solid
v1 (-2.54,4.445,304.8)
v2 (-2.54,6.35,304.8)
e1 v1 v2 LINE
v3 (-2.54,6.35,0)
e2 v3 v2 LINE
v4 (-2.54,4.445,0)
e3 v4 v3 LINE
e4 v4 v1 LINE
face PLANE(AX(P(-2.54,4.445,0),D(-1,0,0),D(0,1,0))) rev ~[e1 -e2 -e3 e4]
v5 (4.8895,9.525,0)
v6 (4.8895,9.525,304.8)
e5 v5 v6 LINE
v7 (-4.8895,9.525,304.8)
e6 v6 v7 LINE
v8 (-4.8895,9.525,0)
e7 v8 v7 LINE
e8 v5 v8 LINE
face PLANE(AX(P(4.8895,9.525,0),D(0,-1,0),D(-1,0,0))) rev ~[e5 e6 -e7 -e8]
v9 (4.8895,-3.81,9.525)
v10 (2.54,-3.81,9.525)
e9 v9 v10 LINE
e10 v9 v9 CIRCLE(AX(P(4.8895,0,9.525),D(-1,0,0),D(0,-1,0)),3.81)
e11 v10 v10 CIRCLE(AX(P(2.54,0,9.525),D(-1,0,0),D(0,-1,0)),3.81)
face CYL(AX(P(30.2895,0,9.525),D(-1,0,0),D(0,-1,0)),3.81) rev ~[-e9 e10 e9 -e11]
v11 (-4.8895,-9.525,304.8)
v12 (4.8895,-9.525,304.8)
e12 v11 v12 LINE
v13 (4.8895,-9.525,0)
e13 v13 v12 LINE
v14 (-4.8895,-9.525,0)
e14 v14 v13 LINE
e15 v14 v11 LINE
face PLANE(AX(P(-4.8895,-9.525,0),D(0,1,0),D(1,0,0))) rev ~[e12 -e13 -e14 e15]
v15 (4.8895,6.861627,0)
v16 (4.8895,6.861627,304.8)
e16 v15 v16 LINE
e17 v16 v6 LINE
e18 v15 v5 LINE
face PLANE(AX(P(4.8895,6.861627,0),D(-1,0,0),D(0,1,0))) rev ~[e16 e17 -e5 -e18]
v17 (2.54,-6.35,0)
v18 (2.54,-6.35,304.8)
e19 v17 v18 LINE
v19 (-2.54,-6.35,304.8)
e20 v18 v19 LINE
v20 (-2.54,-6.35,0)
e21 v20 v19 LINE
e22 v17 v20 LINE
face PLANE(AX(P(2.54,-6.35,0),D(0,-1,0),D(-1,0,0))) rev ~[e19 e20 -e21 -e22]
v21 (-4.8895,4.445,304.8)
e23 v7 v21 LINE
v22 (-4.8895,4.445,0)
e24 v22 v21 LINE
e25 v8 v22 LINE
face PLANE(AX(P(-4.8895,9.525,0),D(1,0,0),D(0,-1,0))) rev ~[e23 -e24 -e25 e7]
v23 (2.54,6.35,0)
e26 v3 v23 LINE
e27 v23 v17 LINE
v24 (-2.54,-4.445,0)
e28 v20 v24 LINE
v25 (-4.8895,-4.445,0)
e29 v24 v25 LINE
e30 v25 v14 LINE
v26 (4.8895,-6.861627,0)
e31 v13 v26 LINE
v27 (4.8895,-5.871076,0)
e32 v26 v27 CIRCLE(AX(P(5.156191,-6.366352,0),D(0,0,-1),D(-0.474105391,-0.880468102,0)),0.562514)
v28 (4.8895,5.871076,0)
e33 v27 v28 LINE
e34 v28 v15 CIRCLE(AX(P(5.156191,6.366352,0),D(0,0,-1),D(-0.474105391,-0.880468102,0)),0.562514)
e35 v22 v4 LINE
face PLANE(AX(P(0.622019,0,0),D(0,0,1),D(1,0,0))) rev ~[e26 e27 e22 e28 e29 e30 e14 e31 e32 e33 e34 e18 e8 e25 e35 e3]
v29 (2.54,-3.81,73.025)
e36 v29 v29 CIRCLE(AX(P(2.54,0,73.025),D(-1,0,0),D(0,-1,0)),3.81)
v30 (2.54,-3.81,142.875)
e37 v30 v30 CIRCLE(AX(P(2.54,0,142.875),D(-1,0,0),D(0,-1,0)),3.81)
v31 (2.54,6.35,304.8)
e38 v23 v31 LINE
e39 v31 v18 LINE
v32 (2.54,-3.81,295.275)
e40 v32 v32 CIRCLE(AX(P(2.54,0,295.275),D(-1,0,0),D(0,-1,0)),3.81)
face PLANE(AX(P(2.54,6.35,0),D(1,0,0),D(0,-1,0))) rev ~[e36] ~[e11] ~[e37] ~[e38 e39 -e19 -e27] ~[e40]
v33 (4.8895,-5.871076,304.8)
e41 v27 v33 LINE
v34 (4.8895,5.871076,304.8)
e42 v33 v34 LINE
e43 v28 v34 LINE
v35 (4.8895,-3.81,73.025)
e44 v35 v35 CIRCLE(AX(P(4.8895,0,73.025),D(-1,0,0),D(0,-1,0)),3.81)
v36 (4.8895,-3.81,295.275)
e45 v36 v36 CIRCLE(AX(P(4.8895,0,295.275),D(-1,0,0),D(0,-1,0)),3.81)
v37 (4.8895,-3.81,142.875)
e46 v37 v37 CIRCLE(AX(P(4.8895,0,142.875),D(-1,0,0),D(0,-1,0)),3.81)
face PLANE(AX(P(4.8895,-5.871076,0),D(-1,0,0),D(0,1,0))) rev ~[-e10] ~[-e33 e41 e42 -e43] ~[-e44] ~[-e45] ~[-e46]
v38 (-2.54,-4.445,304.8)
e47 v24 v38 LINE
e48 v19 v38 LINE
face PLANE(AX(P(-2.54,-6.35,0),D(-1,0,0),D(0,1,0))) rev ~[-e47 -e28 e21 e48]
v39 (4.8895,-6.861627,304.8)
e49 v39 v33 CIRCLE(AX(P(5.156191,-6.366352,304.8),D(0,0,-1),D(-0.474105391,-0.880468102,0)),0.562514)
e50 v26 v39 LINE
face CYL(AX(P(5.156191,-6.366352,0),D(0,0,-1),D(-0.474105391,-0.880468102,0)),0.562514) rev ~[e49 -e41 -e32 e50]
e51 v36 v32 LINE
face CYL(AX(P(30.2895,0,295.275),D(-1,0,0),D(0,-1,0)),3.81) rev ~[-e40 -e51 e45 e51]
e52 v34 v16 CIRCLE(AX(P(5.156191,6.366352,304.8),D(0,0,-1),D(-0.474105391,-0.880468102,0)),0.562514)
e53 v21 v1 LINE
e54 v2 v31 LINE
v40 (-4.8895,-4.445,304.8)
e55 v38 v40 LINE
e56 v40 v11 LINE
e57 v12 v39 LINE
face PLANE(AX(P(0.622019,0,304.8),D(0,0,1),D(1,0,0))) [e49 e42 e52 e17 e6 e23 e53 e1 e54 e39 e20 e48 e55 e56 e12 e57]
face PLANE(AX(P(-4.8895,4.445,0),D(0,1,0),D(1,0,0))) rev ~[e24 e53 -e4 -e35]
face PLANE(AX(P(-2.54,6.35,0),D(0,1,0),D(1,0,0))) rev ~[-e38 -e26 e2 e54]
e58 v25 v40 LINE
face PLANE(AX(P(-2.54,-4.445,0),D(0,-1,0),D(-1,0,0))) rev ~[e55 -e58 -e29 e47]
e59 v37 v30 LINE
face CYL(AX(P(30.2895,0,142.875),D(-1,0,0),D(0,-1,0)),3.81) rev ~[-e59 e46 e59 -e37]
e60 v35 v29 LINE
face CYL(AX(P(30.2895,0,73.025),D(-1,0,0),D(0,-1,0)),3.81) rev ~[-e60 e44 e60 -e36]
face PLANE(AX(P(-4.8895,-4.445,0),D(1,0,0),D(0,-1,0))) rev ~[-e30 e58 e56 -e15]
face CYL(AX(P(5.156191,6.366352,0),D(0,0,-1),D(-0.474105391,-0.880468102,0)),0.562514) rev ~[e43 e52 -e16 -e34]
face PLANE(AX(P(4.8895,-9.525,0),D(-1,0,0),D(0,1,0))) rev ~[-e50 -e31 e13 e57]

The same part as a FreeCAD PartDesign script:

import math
import FreeCAD as App
import Part
import Sketcher

V = App.Vector
Q = App.Units.Quantity

doc = App.newDocument("Part")
body = doc.addObject("PartDesign::Body", "Body")

# Sketch on XY plane
sketch1 = doc.addObject("Sketcher::SketchObject", "Sketch")
body.addObject(sketch1)
sketch1.AttachmentSupport = (doc.XY_Plane, [""])
sketch1.MapMode = "FlatFace"
sketch1.addGeometry([
    Part.LineSegment(V(-4.9, -9.5, 0), V(4.9, -9.5, 0)),  # 0
    Part.LineSegment(V(4.9, -9.5, 0), V(4.9, -6.9, 0)),  # 1
    Part.ArcOfCircle(Part.Circle(V(5.2, -6.4, 0), V(0, 0, 1), 0.6), math.radians(118), math.radians(242)),  # 2
    Part.LineSegment(V(4.9, -5.9, 0), V(4.9, 5.9, 0)),  # 3
    Part.ArcOfCircle(Part.Circle(V(5.2, 6.4, 0), V(0, 0, 1), 0.6), math.radians(118), math.radians(242)),  # 4
    Part.LineSegment(V(4.9, 6.9, 0), V(4.9, 9.5, 0)),  # 5
    Part.LineSegment(V(4.9, 9.5, 0), V(-4.9, 9.5, 0)),  # 6
    Part.LineSegment(V(-4.9, 9.5, 0), V(-4.9, 4.4, 0)),  # 7
    Part.LineSegment(V(-4.9, 4.4, 0), V(-2.5, 4.4, 0)),  # 8
    Part.LineSegment(V(-2.5, 4.4, 0), V(-2.5, 6.3, 0)),  # 9
    Part.LineSegment(V(-2.5, 6.3, 0), V(2.5, 6.3, 0)),  # 10
    Part.LineSegment(V(2.5, 6.3, 0), V(2.5, -6.3, 0)),  # 11
    Part.LineSegment(V(2.5, -6.3, 0), V(-2.5, -6.3, 0)),  # 12
    Part.LineSegment(V(-2.5, -6.3, 0), V(-2.5, -4.4, 0)),  # 13
    Part.LineSegment(V(-2.5, -4.4, 0), V(-4.9, -4.4, 0)),  # 14
    Part.LineSegment(V(-4.9, -4.4, 0), V(-4.9, -9.5, 0)),  # 15
], False)
sketch1.addConstraint([
    Sketcher.Constraint("Coincident", 0, 2, 1, 1),
    Sketcher.Constraint("Coincident", 1, 2, 2, 2),
    Sketcher.Constraint("Coincident", 2, 1, 3, 1),
    Sketcher.Constraint("Coincident", 3, 2, 4, 2),
    Sketcher.Constraint("Coincident", 4, 1, 5, 1),
    Sketcher.Constraint("Coincident", 5, 2, 6, 1),
    Sketcher.Constraint("Coincident", 6, 2, 7, 1),
    Sketcher.Constraint("Coincident", 7, 2, 8, 1),
    Sketcher.Constraint("Coincident", 8, 2, 9, 1),
    Sketcher.Constraint("Coincident", 9, 2, 10, 1),
    Sketcher.Constraint("Coincident", 10, 2, 11, 1),
    Sketcher.Constraint("Coincident", 11, 2, 12, 1),
    Sketcher.Constraint("Coincident", 12, 2, 13, 1),
    Sketcher.Constraint("Coincident", 13, 2, 14, 1),
    Sketcher.Constraint("Coincident", 14, 2, 15, 1),
    Sketcher.Constraint("Coincident", 15, 2, 0, 1),
    Sketcher.Constraint("Horizontal", 0),
    Sketcher.Constraint("Vertical", 1),
    Sketcher.Constraint("Vertical", 3),
    Sketcher.Constraint("Vertical", 5),
    Sketcher.Constraint("Horizontal", 6),
    Sketcher.Constraint("Vertical", 7),
    Sketcher.Constraint("Horizontal", 8),
    Sketcher.Constraint("Vertical", 9),
    Sketcher.Constraint("Horizontal", 10),
    Sketcher.Constraint("Vertical", 11),
    Sketcher.Constraint("Horizontal", 12),
    Sketcher.Constraint("Vertical", 13),
    Sketcher.Constraint("Horizontal", 14),
    Sketcher.Constraint("Vertical", 15),
    Sketcher.Constraint("Equal", 2, 4),
    Sketcher.Constraint("Symmetric", 0, 2, 6, 2, -1, 1),
    Sketcher.Constraint("Symmetric", 9, 2, 11, 2, -1, 1),
    Sketcher.Constraint("Symmetric", 2, 3, 4, 3, -1),
    Sketcher.Constraint("Symmetric", 8, 2, 13, 2, -1),
    Sketcher.Constraint("Vertical", 1, 2, 2, 1),
    Sketcher.Constraint("Vertical", 3, 2, 4, 1),
    Sketcher.Constraint("Vertical", 7, 2, 14, 2),
    Sketcher.Constraint("Equal", 12, 7),
    Sketcher.Constraint("DistanceX", 10, 1, 10, 2, Q("0.2 in")),
    Sketcher.Constraint("DistanceY", 11, 2, 11, 1, Q("0.5 in")),
    Sketcher.Constraint("DistanceX", 0, 1, 0, 2, Q("0.385 in")),
    Sketcher.Constraint("DistanceY", 9, 1, 9, 2, Q("0.075 in")),
    Sketcher.Constraint("Radius", 2, Q("0.562514 mm")),
    Sketcher.Constraint("DistanceY", 1, 1, 1, 2, Q("2.663373 mm")),
    Sketcher.Constraint("DistanceY", 3, 1, 3, 2, Q("11.742152 mm")),
])
pad1 = doc.addObject("PartDesign::Pad", "Pad")
body.addObject(pad1)
pad1.Profile = sketch1
pad1.Length = Q("12 in")

# Sketch on YZ plane
sketch2 = doc.addObject("Sketcher::SketchObject", "Sketch001")
body.addObject(sketch2)
sketch2.AttachmentSupport = (doc.YZ_Plane, [""])
sketch2.MapMode = "FlatFace"
sketch2.AttachmentOffset = App.Placement(V(0, 0, 0.1925 * 25.4), App.Rotation())
sketch2.addGeometry([
    Part.Circle(V(0, 295.3, 0), V(0, 0, 1), 3.8),
    Part.Circle(V(0, 142.9, 0), V(0, 0, 1), 3.8),
    Part.Circle(V(0, 73, 0), V(0, 0, 1), 3.8),
    Part.Circle(V(0, 9.5, 0), V(0, 0, 1), 3.8),
], False)
sketch2.addConstraint([
    Sketcher.Constraint("Equal", 0, 1),
    Sketcher.Constraint("Equal", 1, 2),
    Sketcher.Constraint("Equal", 2, 3),
    Sketcher.Constraint("PointOnObject", 0, 3, -2),
    Sketcher.Constraint("PointOnObject", 1, 3, -2),
    Sketcher.Constraint("PointOnObject", 2, 3, -2),
    Sketcher.Constraint("PointOnObject", 3, 3, -2),
    Sketcher.Constraint("Diameter", 0, Q("0.3 in")),
    Sketcher.Constraint("DistanceY", 1, 3, 0, 3, Q("6 in")),
    Sketcher.Constraint("DistanceY", 3, 3, 2, 3, Q("2.5 in")),
    Sketcher.Constraint("DistanceY", 2, 3, 1, 3, Q("2.75 in")),
    Sketcher.Constraint("DistanceY", -1, 1, 0, 3, Q("11.625 in")),
])
doc.recompute()
hole = doc.addObject("PartDesign::Hole", "Hole")
body.addObject(hole)
hole.Profile = sketch2
hole.ThreadType = "None"
hole.Diameter = Q("0.3 in")
hole.DepthType = "Dimension"
hole.Depth = Q("1 in")
hole.DrillPoint = "Flat"

doc.recompute()
